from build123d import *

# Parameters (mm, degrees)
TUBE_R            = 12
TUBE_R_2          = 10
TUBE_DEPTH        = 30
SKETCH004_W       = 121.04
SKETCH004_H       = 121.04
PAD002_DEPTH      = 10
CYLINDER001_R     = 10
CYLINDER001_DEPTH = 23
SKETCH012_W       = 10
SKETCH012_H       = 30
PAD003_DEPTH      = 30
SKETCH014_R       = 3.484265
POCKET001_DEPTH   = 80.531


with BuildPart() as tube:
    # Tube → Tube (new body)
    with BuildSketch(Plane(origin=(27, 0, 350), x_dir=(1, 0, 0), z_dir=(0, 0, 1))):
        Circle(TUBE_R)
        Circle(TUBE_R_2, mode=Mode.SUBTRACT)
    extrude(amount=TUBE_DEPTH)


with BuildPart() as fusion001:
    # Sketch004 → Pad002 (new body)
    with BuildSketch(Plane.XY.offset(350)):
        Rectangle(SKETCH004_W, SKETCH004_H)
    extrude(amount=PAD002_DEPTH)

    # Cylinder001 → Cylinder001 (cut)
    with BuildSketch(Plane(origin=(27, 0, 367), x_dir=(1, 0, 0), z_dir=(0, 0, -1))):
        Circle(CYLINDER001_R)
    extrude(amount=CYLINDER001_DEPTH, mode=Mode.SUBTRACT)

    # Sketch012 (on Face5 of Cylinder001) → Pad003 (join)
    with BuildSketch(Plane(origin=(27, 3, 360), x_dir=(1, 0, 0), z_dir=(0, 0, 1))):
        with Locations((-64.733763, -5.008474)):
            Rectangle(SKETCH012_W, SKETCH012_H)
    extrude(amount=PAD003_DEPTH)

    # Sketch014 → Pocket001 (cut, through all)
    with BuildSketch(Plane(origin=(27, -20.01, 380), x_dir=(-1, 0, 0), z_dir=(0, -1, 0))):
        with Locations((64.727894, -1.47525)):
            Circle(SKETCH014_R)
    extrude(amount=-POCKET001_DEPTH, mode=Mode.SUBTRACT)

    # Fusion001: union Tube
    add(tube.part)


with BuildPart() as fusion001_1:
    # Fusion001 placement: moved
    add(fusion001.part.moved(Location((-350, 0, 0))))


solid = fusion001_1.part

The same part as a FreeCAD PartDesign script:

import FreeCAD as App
import Part
import Sketcher

V = App.Vector

doc = App.newDocument("Part")
body = doc.addObject("PartDesign::Body", "Body")

sketch1 = body.newObject("Sketcher::SketchObject", "Sketch")
sketch1.AttachmentSupport = (doc.getObject("XY_Plane"), [""])
sketch1.MapMode = "FlatFace"
sketch1.AttachmentOffset = App.Placement(V(0, 0, 350), App.Rotation())
sketch1.addGeometry([
    Part.Circle(V(27, 0, 0), V(0, 0, 1), 12),
    Part.Circle(V(27, 0, 0), V(0, 0, 1), 10),
], False)
sketch1.addConstraint([
    Sketcher.Constraint("Coincident", 1, 3, 0, 3),
    Sketcher.Constraint("PointOnObject", 0, 3, -1),
    Sketcher.Constraint("Diameter", 0, 24.0),
    Sketcher.Constraint("Diameter", 1, 20.0),
    Sketcher.Constraint("DistanceX", -1, 1, 0, 3, 27.0),
])
pad1 = body.newObject("PartDesign::Pad", "Pad")
pad1.Profile = sketch1
pad1.Length = 30
body2 = doc.addObject("PartDesign::Body", "Body001")

sketch2 = body2.newObject("Sketcher::SketchObject", "Sketch001")
sketch2.AttachmentSupport = (doc.getObject("XY_Plane001"), [""])
sketch2.MapMode = "FlatFace"
sketch2.AttachmentOffset = App.Placement(V(0, 0, 350), App.Rotation())
sketch2.addGeometry([
    Part.LineSegment(V(-61, 61, 0), V(-61, -61, 0)),
    Part.LineSegment(V(-61, -61, 0), V(61, -61, 0)),
    Part.LineSegment(V(61, -61, 0), V(61, 61, 0)),
    Part.LineSegment(V(61, 61, 0), V(-61, 61, 0)),
], False)
sketch2.addConstraint([
    Sketcher.Constraint("Coincident", 0, 2, 1, 1),
    Sketcher.Constraint("Coincident", 1, 2, 2, 1),
    Sketcher.Constraint("Coincident", 2, 2, 3, 1),
    Sketcher.Constraint("Coincident", 3, 2, 0, 1),
    Sketcher.Constraint("Vertical", 0),
    Sketcher.Constraint("Horizontal", 1),
    Sketcher.Constraint("Vertical", 2),
    Sketcher.Constraint("Horizontal", 3),
    Sketcher.Constraint("Symmetric", 0, 2, 2, 2, -1, 1),
    Sketcher.Constraint("Equal", 3, 0),
    Sketcher.Constraint("DistanceX", 1, 1, 1, 2, 121.04),
])
pad2 = body2.newObject("PartDesign::Pad", "Pad001")
pad2.Profile = sketch2
pad2.Length = 10

sketch3 = body2.newObject("Sketcher::SketchObject", "Sketch002")
sketch3.AttachmentSupport = (doc.getObject("XY_Plane001"), [""])
sketch3.MapMode = "FlatFace"
sketch3.AttachmentOffset = App.Placement(V(0, 0, 367), App.Rotation())
sketch3.addGeometry(Part.Circle(V(27, 0, 0), V(0, 0, 1), 10), False)
sketch3.addConstraint([
    Sketcher.Constraint("PointOnObject", 0, 3, -1),
    Sketcher.Constraint("Diameter", 0, 20.0),
    Sketcher.Constraint("DistanceX", -1, 1, 0, 3, 27.0),
])
pocket1 = body2.newObject("PartDesign::Pocket", "Pocket")
pocket1.Profile = sketch3
pocket1.Length = 23

sketch4 = body2.newObject("Sketcher::SketchObject", "Sketch003")
sketch4.AttachmentSupport = (doc.getObject("XY_Plane001"), [""])
sketch4.MapMode = "FlatFace"
sketch4.AttachmentOffset = App.Placement(V(0, 0, 360), App.Rotation())
sketch4.addGeometry([
    Part.LineSegment(V(-43, 13, 0), V(-43, -17, 0)),
    Part.LineSegment(V(-43, -17, 0), V(-33, -17, 0)),
    Part.LineSegment(V(-33, -17, 0), V(-33, 13, 0)),
    Part.LineSegment(V(-33, 13, 0), V(-43, 13, 0)),
], False)
sketch4.addConstraint([
    Sketcher.Constraint("Coincident", 0, 2, 1, 1),
    Sketcher.Constraint("Coincident", 1, 2, 2, 1),
    Sketcher.Constraint("Coincident", 2, 2, 3, 1),
    Sketcher.Constraint("Coincident", 3, 2, 0, 1),
    Sketcher.Constraint("Vertical", 0),
    Sketcher.Constraint("Horizontal", 1),
    Sketcher.Constraint("Vertical", 2),
    Sketcher.Constraint("Horizontal", 3),
    Sketcher.Constraint("DistanceX", 1, 1, 1, 2, 10.0),
    Sketcher.Constraint("DistanceY", 0, 2, 0, 1, 30.0),
    Sketcher.Constraint("DistanceX", 0, 2, -1, 1, 42.733763),
    Sketcher.Constraint("DistanceY", 0, 2, -1, 1, 17.008474),
])
pad3 = body2.newObject("PartDesign::Pad", "Pad002")
pad3.Profile = sketch4
pad3.Length = 30

sketch5 = body2.newObject("Sketcher::SketchObject", "Sketch004")
sketch5.AttachmentSupport = (doc.getObject("XZ_Plane001"), [""])
sketch5.MapMode = "FlatFace"
sketch5.AttachmentOffset = App.Placement(V(0, 0, 20.01), App.Rotation())
sketch5.addGeometry(Part.Circle(V(-37.7, 381.5, 0), V(0, 0, 1), 3.5), False)
sketch5.addConstraint([
    Sketcher.Constraint("Diameter", 0, 6.96853),
    Sketcher.Constraint("DistanceY", -1, 1, 0, 3, 381.47525),
    Sketcher.Constraint("DistanceX", 0, 3, -1, 1, 37.727894),
])
pocket2 = body2.newObject("PartDesign::Pocket", "Pocket001")
pocket2.Profile = sketch5
pocket2.Type = "ThroughAll"
doc.recompute()

boolean = body2.newObject("PartDesign::Boolean", "Boolean")
boolean.Type = "Fuse"
boolean.addObjects([body])
body3 = doc.addObject("PartDesign::Body", "Body002")
doc.recompute()

body2.Placement = App.Placement(V(-350, 0, 0), App.Rotation(V(0, 0, 1), 0))
boolean2 = body3.newObject("PartDesign::Boolean", "Boolean001")
boolean2.Type = "Fuse"
boolean2.addObjects([body2])

doc.recompute()
